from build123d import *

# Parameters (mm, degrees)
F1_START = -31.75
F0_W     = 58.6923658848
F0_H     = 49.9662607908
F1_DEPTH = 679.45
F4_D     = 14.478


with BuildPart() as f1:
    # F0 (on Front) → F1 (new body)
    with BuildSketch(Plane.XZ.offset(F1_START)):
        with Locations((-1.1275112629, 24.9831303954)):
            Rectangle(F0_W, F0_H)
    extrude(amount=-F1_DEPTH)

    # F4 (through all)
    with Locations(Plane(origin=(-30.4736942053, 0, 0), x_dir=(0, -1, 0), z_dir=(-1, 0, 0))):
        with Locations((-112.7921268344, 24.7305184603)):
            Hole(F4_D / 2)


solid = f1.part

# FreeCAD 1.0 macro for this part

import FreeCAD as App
import Part
import Sketcher
Q = App.Units.Quantity

doc = App.newDocument("Part")
body = doc.addObject("PartDesign::Body", "Body")

# Sketch on XZ plane
sketch1 = body.newObject("Sketcher::SketchObject", "Sketch")
sketch1.AttachmentSupport = (doc.getObject("XZ_Plane"), [""])
sketch1.MapMode = "FlatFace"
sketch1.AttachmentOffset = App.Placement(App.Vector(0, 0, -1.25 * 25.4), App.Rotation())
sketch1.addGeometry([
    Part.LineSegment(App.Vector(-30.473694, 49.966261, 0), App.Vector(-30.473694, 0, 0)),
    Part.LineSegment(App.Vector(-30.473694, 0, 0), App.Vector(28.218672, 0, 0)),
    Part.LineSegment(App.Vector(28.218672, 0, 0), App.Vector(28.218672, 49.966261, 0)),
    Part.LineSegment(App.Vector(28.218672, 49.966261, 0), App.Vector(-30.473694, 49.966261, 0)),
], False)
sketch1.addConstraint([
    Sketcher.Constraint("Coincident", 0, 2, 1, 1),
    Sketcher.Constraint("Coincident", 1, 2, 2, 1),
    Sketcher.Constraint("Coincident", 2, 2, 3, 1),
    Sketcher.Constraint("Coincident", 3, 2, 0, 1),
    Sketcher.Constraint("Vertical", 0),
    Sketcher.Constraint("Horizontal", 1),
    Sketcher.Constraint("Vertical", 2),
    Sketcher.Constraint("Horizontal", 3),
    Sketcher.Constraint("PointOnObject", 0, 2, -1),
    Sketcher.Constraint("DistanceY", 0, 2, 0, 1, Q("49.966261 mm")),
    Sketcher.Constraint("DistanceX", 1, 1, 1, 2, Q("58.692366 mm")),
    Sketcher.Constraint("DistanceX", -1, 1, 1, 2, Q("28.218672 mm")),
])
pad1 = body.newObject("PartDesign::Pad", "Pad")
pad1.Profile = sketch1
pad1.Length = Q("26.75 in")
pad1.Reversed = True

# Sketch on YZ plane
sketch2 = body.newObject("Sketcher::SketchObject", "Sketch001")
sketch2.AttachmentSupport = (doc.getObject("YZ_Plane"), [""])
sketch2.MapMode = "FlatFace"
sketch2.AttachmentOffset = App.Placement(App.Vector(0, 0, -30.473694), App.Rotation())
sketch2.addGeometry(Part.Circle(App.Vector(112.792127, 24.730518, 0), App.Vector(0, 0, 1), 7.239), False)
sketch2.addConstraint([
    Sketcher.Constraint("Diameter", 0, Q("0.57 in")),
    Sketcher.Constraint("DistanceY", -1, 1, 0, 3, Q("24.730518 mm")),
    Sketcher.Constraint("DistanceX", -1, 1, 0, 3, Q("112.792127 mm")),
])
doc.recompute()
hole = body.newObject("PartDesign::Hole", "Hole")
hole.Profile = sketch2
hole.ThreadType = "None"
hole.Diameter = Q("0.57 in")
hole.DepthType = "ThroughAll"
hole.Reversed = True

doc.recompute()
